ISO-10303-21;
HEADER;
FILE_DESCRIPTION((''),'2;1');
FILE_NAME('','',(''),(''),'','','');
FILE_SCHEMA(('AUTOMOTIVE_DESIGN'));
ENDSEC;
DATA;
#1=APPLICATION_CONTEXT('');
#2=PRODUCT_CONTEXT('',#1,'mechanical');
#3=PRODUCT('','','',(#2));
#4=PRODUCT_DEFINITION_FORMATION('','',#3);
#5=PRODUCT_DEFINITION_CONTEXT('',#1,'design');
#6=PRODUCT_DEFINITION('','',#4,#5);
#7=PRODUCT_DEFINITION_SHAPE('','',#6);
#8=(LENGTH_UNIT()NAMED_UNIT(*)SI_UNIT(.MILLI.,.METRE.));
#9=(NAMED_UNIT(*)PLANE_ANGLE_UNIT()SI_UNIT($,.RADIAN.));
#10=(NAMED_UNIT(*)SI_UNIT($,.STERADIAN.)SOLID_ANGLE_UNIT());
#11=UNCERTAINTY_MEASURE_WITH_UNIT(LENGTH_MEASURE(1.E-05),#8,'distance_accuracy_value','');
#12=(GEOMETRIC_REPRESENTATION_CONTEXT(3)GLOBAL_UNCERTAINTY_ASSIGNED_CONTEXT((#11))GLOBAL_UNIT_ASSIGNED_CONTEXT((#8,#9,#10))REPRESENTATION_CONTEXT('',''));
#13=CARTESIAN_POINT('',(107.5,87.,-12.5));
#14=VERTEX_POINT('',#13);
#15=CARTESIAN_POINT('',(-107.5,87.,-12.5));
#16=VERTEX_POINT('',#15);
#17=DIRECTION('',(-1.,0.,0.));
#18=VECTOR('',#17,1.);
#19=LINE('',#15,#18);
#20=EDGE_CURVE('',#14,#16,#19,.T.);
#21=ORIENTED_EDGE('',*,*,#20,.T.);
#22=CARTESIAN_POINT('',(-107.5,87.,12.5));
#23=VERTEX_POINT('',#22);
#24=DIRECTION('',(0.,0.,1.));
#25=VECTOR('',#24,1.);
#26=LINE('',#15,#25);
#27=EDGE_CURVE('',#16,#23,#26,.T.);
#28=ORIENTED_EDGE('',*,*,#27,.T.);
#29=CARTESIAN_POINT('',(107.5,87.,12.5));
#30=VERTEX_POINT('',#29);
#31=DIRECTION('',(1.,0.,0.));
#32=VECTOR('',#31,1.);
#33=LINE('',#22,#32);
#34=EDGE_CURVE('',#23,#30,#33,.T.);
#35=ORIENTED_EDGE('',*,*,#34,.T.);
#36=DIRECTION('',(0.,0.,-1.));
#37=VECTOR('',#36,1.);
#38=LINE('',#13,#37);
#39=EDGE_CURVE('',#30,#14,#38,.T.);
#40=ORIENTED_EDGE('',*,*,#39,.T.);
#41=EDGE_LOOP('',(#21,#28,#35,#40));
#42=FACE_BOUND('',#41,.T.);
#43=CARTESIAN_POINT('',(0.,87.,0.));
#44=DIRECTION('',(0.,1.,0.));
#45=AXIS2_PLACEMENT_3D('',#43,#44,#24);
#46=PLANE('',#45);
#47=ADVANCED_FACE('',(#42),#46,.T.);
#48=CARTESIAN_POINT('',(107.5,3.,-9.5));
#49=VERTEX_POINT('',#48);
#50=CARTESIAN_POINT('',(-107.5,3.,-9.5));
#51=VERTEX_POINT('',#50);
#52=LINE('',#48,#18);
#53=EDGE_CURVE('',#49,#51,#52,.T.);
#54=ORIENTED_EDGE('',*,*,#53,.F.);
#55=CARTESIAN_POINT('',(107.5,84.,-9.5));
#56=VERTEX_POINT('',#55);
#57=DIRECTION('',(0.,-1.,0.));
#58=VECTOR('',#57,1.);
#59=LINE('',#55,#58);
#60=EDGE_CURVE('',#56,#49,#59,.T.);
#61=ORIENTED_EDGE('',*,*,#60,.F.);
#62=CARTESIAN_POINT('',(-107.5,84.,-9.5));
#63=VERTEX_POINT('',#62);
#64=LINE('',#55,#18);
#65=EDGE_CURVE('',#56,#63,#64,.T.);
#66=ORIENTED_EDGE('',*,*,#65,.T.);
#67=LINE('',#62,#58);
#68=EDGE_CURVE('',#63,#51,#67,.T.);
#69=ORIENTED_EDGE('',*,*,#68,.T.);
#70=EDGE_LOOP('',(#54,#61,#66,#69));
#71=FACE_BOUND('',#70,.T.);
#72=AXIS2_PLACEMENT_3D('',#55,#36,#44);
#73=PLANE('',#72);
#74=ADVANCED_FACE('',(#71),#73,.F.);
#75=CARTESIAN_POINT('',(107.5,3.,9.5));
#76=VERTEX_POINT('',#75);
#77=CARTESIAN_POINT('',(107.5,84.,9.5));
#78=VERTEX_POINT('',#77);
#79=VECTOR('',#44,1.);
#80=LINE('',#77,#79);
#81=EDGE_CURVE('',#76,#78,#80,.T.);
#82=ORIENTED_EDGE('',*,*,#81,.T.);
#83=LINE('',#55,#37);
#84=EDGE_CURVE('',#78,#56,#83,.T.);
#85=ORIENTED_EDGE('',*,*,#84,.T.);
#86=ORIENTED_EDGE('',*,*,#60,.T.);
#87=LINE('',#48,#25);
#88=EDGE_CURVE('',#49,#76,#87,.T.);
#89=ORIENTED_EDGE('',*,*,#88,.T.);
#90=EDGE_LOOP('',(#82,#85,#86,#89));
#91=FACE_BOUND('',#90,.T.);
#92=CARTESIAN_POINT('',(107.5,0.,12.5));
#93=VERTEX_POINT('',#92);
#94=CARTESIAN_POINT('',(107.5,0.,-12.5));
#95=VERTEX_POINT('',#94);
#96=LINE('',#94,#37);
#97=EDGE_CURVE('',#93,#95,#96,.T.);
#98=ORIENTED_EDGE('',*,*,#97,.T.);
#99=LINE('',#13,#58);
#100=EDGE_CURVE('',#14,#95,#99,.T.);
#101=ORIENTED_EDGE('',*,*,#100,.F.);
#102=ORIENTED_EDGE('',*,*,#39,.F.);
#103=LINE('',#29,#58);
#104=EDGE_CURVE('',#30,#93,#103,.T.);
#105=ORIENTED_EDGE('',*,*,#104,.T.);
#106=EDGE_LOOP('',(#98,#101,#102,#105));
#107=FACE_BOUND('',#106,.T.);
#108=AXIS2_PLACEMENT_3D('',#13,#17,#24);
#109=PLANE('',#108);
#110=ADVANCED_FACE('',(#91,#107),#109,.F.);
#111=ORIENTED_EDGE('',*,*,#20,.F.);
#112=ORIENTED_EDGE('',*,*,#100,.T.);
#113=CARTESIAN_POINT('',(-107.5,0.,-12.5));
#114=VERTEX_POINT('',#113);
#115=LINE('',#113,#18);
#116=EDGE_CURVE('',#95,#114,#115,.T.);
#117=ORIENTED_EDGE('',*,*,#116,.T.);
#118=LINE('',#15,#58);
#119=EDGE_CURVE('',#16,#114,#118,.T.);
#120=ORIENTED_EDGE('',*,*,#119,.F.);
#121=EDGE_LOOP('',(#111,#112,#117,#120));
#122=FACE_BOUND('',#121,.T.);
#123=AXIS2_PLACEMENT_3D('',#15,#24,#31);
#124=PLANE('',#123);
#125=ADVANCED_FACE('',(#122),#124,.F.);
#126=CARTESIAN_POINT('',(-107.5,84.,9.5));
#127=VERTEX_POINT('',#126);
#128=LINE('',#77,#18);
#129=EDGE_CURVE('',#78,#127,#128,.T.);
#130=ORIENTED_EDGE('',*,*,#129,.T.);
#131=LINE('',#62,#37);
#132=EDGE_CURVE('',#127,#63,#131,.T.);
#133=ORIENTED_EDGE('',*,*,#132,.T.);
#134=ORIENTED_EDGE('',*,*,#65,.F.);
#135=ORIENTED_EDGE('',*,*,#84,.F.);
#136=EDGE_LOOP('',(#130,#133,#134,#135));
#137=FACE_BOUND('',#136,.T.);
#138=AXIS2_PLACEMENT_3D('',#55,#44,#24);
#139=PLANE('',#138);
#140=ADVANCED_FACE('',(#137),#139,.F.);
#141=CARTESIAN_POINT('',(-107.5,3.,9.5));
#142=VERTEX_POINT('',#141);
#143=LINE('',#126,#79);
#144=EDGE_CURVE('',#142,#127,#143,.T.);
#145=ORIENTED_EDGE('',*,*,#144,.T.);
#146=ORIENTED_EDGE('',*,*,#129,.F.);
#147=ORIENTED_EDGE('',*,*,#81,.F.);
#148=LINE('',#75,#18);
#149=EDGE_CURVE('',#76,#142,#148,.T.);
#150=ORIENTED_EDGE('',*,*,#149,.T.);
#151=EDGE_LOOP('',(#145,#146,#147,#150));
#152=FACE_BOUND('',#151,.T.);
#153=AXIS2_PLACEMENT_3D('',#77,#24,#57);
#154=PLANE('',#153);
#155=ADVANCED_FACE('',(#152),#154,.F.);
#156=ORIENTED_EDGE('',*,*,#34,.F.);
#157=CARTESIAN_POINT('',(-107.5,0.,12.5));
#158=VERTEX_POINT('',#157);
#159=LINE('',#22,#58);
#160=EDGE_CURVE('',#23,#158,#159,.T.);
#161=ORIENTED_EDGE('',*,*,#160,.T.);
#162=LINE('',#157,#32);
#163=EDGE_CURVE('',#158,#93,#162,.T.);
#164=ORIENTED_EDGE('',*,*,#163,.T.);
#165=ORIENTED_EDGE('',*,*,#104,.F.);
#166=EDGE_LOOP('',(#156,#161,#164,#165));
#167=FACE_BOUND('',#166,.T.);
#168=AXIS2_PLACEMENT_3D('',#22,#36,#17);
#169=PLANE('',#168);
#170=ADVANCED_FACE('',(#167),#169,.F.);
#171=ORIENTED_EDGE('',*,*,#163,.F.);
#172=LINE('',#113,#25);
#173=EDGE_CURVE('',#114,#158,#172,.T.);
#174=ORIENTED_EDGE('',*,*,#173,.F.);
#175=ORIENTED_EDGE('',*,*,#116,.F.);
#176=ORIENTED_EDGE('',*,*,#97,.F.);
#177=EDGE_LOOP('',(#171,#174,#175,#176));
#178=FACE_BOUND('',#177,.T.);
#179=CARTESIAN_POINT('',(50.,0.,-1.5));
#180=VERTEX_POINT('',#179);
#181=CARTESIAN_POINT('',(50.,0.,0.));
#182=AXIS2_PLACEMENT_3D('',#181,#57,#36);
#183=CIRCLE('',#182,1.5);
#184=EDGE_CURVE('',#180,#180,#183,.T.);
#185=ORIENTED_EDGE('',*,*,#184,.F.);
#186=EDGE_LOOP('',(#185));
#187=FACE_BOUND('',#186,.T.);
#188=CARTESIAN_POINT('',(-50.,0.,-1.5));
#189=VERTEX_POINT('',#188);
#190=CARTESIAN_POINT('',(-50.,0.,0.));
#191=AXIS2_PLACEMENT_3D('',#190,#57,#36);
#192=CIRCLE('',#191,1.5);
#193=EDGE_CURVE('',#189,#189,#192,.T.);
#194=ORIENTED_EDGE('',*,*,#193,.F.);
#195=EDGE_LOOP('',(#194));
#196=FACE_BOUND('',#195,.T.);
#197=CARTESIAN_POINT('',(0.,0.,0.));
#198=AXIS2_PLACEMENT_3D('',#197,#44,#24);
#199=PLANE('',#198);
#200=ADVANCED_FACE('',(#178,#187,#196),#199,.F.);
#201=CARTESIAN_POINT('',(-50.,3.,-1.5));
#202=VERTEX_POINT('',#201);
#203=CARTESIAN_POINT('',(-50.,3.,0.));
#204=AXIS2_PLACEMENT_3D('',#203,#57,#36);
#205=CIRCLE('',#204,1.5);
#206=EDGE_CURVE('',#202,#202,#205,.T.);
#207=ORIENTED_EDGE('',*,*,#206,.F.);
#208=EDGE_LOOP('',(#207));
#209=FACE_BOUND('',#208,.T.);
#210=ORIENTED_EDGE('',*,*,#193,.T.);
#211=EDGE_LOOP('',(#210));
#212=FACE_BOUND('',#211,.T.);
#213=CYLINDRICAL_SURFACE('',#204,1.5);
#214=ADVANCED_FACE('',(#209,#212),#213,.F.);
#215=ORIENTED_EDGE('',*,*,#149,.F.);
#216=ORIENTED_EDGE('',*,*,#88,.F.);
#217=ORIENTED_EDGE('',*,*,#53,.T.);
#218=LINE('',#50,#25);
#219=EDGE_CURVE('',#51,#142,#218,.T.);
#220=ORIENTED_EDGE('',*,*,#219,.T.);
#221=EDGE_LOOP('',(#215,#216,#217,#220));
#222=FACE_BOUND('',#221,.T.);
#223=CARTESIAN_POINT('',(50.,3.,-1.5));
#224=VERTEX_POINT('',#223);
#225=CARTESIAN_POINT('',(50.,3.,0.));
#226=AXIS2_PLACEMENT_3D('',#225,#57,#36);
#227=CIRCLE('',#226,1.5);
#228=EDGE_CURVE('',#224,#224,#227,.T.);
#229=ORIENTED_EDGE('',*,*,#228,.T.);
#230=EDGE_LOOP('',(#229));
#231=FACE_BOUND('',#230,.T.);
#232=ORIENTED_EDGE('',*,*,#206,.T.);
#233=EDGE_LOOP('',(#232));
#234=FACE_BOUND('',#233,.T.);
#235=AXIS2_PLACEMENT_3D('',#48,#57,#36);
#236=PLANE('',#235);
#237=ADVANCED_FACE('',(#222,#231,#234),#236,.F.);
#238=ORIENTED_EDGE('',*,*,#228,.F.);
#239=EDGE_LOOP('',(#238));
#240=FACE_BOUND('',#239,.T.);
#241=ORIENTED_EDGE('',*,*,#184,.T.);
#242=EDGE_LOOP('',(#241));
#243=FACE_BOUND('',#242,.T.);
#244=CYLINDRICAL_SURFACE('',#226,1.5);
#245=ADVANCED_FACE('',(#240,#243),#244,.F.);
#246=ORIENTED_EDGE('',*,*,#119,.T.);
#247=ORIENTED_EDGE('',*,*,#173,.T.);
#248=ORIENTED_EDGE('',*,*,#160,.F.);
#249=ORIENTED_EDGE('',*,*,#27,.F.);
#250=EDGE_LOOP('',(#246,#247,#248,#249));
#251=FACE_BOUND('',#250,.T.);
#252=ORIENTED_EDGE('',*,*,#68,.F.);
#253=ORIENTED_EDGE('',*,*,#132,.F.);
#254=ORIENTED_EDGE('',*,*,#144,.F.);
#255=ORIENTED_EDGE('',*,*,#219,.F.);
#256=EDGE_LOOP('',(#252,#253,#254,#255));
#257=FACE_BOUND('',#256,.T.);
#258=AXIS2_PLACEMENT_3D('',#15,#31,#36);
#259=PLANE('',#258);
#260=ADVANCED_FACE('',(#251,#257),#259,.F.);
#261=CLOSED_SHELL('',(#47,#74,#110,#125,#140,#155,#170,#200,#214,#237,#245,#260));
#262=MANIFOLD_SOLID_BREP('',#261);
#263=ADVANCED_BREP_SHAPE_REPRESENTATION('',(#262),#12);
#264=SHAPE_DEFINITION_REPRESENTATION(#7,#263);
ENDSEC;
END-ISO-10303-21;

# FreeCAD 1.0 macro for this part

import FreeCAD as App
import Part
import Sketcher

V = App.Vector

doc = App.newDocument("Part")
body = doc.addObject("PartDesign::Body", "Body")

# Sketch on XZ plane
sketch1 = doc.addObject("Sketcher::SketchObject", "Sketch")
body.addObject(sketch1)
sketch1.AttachmentSupport = (doc.XZ_Plane, [""])
sketch1.MapMode = "FlatFace"
sketch1.addGeometry(Part.LineSegment(V(-108, -12, 0), V(-108, 12, 0)), False)
sketch1.addGeometry(Part.LineSegment(V(-108, 12, 0), V(108, 12, 0)), False)
sketch1.addGeometry(Part.LineSegment(V(108, 12, 0), V(108, -12, 0)), False)
sketch1.addGeometry(Part.LineSegment(V(108, -12, 0), V(-108, -12, 0)), False)
sketch1.addConstraint(Sketcher.Constraint("Coincident", 0, 2, 1, 1))
sketch1.addConstraint(Sketcher.Constraint("Coincident", 1, 2, 2, 1))
sketch1.addConstraint(Sketcher.Constraint("Coincident", 2, 2, 3, 1))
sketch1.addConstraint(Sketcher.Constraint("Coincident", 3, 2, 0, 1))
sketch1.addConstraint(Sketcher.Constraint("Vertical", 0))
sketch1.addConstraint(Sketcher.Constraint("Horizontal", 1))
sketch1.addConstraint(Sketcher.Constraint("Vertical", 2))
sketch1.addConstraint(Sketcher.Constraint("Horizontal", 3))
sketch1.addConstraint(Sketcher.Constraint("Symmetric", 0, 2, 2, 2, -1, 1))
sketch1.addConstraint(Sketcher.Constraint("DistanceX", 1, 1, 1, 2, 215.0))
sketch1.addConstraint(Sketcher.Constraint("DistanceY", 0, 1, 0, 2, 25.0))
pad1 = doc.addObject("PartDesign::Pad", "Pad")
body.addObject(pad1)
pad1.Profile = sketch1
pad1.Length = 87
pad1.Reversed = True

# Sketch on YZ plane
sketch2 = doc.addObject("Sketcher::SketchObject", "Sketch001")
body.addObject(sketch2)
sketch2.AttachmentSupport = (doc.YZ_Plane, [""])
sketch2.MapMode = "FlatFace"
sketch2.AttachmentOffset = App.Placement(V(0, 0, -107.5), App.Rotation())
sketch2.addGeometry(Part.LineSegment(V(84, -10, 0), V(3, -10, 0)), False)
sketch2.addGeometry(Part.LineSegment(V(3, -10, 0), V(3, 10, 0)), False)
sketch2.addGeometry(Part.LineSegment(V(3, 10, 0), V(84, 10, 0)), False)
sketch2.addGeometry(Part.LineSegment(V(84, 10, 0), V(84, -10, 0)), False)
sketch2.addConstraint(Sketcher.Constraint("Coincident", 0, 2, 1, 1))
sketch2.addConstraint(Sketcher.Constraint("Coincident", 1, 2, 2, 1))
sketch2.addConstraint(Sketcher.Constraint("Coincident", 2, 2, 3, 1))
sketch2.addConstraint(Sketcher.Constraint("Coincident", 3, 2, 0, 1))
sketch2.addConstraint(Sketcher.Constraint("Horizontal", 0))
sketch2.addConstraint(Sketcher.Constraint("Vertical", 1))
sketch2.addConstraint(Sketcher.Constraint("Horizontal", 2))
sketch2.addConstraint(Sketcher.Constraint("Vertical", 3))
sketch2.addConstraint(Sketcher.Constraint("DistanceX", 0, 2, 0, 1, 81.0))
sketch2.addConstraint(Sketcher.Constraint("DistanceY", 1, 1, 1, 2, 19.0))
sketch2.addConstraint(Sketcher.Constraint("DistanceX", -1, 1, 0, 2, 3.0))
sketch2.addConstraint(Sketcher.Constraint("DistanceY", 0, 2, -1, 1, 9.5))
pocket1 = doc.addObject("PartDesign::Pocket", "Pocket")
body.addObject(pocket1)
pocket1.Profile = sketch2
pocket1.Type = "ThroughAll"
pocket1.Reversed = True

# Sketch on XZ plane
sketch3 = doc.addObject("Sketcher::SketchObject", "Sketch002")
body.addObject(sketch3)
sketch3.AttachmentSupport = (doc.XZ_Plane, [""])
sketch3.MapMode = "FlatFace"
sketch3.addGeometry(Part.Circle(V(-50, 0, 0), V(0, 0, 1), 1.5), False)
sketch3.addGeometry(Part.Circle(V(50, 0, 0), V(0, 0, 1), 1.5), False)
sketch3.addConstraint(Sketcher.Constraint("Equal", 0, 1))
sketch3.addConstraint(Sketcher.Constraint("Symmetric", 0, 3, 1, 3, -1, 1))
sketch3.addConstraint(Sketcher.Constraint("PointOnObject", 0, 3, -1))
sketch3.addConstraint(Sketcher.Constraint("Diameter", 0, 3.0))
sketch3.addConstraint(Sketcher.Constraint("DistanceX", 0, 3, -1, 1, 50.0))
pocket2 = doc.addObject("PartDesign::Pocket", "Pocket001")
body.addObject(pocket2)
pocket2.Profile = sketch3
pocket2.Length = 3

doc.recompute()
